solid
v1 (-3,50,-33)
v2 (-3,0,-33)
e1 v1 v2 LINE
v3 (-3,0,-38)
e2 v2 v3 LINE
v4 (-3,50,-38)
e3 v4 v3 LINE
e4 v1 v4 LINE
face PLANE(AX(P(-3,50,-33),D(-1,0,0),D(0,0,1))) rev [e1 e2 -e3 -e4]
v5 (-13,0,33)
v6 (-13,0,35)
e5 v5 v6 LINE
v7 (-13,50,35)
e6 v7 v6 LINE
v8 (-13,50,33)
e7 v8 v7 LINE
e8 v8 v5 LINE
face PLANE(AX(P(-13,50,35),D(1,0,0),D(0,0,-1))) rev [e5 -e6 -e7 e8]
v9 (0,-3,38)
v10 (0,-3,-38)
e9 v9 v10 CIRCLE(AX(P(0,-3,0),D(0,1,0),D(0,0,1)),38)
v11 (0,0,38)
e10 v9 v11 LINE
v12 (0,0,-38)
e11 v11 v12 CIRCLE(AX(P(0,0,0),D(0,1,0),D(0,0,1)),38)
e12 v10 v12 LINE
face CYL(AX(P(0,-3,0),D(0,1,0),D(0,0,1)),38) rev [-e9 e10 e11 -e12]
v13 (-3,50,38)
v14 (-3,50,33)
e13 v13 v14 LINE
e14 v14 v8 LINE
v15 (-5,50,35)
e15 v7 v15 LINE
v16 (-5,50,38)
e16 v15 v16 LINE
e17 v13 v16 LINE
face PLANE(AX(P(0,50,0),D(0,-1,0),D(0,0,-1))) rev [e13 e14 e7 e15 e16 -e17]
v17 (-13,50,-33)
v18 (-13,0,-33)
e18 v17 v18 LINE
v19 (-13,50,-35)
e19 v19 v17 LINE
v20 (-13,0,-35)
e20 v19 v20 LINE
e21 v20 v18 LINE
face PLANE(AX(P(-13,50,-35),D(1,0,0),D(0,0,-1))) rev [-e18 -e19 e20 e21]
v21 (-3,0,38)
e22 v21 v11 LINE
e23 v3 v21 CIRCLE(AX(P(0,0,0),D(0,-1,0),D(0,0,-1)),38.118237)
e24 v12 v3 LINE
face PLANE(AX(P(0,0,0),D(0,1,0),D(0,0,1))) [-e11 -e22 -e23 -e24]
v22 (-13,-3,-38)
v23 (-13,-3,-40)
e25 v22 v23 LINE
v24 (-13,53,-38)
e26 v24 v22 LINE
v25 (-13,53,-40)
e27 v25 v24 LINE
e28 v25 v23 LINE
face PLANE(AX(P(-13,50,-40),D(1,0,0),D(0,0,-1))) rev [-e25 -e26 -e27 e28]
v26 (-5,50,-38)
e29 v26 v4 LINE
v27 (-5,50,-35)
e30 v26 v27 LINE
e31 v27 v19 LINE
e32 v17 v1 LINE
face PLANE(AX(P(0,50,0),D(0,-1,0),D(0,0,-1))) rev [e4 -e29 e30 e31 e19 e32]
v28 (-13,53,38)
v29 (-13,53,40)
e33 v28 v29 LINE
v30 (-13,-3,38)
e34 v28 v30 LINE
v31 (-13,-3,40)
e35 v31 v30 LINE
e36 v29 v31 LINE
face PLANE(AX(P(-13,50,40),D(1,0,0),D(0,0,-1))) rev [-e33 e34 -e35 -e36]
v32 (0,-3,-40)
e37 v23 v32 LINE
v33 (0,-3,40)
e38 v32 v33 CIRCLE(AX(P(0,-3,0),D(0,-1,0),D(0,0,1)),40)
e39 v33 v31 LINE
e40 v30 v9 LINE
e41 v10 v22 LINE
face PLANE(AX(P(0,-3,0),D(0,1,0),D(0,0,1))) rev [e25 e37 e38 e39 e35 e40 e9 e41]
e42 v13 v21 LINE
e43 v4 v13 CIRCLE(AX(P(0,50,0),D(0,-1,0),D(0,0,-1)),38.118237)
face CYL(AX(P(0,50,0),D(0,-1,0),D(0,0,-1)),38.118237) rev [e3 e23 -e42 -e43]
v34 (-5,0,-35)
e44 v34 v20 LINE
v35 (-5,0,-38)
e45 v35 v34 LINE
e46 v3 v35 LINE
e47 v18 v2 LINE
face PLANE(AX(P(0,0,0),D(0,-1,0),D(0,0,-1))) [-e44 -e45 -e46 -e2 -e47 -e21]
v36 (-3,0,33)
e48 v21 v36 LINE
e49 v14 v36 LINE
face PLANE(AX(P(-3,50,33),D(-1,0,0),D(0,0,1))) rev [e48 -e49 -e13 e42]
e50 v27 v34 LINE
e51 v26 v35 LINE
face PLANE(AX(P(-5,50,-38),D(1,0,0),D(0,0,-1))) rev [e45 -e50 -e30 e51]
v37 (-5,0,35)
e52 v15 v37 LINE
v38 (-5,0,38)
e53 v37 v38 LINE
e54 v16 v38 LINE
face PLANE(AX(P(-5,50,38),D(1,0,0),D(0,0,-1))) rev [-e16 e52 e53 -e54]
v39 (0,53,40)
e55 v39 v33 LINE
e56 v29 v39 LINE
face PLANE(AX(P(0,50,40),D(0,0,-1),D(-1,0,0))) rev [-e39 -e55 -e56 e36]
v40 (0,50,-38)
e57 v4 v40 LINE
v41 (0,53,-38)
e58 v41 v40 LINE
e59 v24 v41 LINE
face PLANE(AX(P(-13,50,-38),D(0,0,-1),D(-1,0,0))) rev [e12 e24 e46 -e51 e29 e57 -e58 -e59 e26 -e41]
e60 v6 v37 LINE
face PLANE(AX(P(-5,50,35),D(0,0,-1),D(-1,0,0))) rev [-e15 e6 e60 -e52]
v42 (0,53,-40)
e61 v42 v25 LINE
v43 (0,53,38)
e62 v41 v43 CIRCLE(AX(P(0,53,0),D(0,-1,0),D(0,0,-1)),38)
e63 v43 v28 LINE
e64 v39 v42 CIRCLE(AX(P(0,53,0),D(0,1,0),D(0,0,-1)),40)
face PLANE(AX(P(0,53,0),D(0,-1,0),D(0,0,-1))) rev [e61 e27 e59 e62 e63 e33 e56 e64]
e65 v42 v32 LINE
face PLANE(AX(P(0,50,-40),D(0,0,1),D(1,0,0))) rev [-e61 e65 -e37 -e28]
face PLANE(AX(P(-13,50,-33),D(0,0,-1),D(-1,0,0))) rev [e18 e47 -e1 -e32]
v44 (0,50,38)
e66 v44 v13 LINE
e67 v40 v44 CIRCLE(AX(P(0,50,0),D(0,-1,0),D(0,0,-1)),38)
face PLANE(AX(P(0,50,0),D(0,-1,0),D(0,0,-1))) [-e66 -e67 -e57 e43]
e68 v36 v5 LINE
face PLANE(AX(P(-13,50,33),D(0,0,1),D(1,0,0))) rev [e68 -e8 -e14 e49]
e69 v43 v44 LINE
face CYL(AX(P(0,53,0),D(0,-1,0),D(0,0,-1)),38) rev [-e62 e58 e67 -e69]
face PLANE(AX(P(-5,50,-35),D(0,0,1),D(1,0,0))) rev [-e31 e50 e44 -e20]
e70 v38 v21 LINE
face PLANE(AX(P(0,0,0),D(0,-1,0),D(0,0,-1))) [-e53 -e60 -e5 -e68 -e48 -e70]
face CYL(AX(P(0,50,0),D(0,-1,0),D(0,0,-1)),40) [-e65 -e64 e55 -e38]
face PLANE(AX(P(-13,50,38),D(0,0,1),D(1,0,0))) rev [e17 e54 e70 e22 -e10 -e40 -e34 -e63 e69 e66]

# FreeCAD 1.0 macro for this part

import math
import FreeCAD as App
import Part
import Sketcher

doc = App.newDocument("Part")
body = doc.addObject("PartDesign::Body", "Body")

sketch1 = body.newObject("Sketcher::SketchObject", "Sketch")
sketch1.AttachmentSupport = (doc.getObject("XZ_Plane"), [""])
sketch1.MapMode = "FlatFace"
sketch1.addGeometry([
    Part.LineSegment(App.Vector(0, -40, 0), App.Vector(-13, -40, 0)),
    Part.LineSegment(App.Vector(-13, -40, 0), App.Vector(-13, -38, 0)),
    Part.LineSegment(App.Vector(-13, -38, 0), App.Vector(-5, -38, 0)),
    Part.LineSegment(App.Vector(-5, -38, 0), App.Vector(-5, -35, 0)),
    Part.LineSegment(App.Vector(-5, -35, 0), App.Vector(-13, -35, 0)),
    Part.LineSegment(App.Vector(-13, -35, 0), App.Vector(-13, -33, 0)),
    Part.LineSegment(App.Vector(-13, -33, 0), App.Vector(-3, -33, 0)),
    Part.LineSegment(App.Vector(-3, -33, 0), App.Vector(-3, -38, 0)),
    Part.ArcOfCircle(Part.Circle(App.Vector(0, 0, 0), App.Vector(0, 0, 1), 38.1), math.radians(-95), math.radians(95)),
    Part.LineSegment(App.Vector(-3, 38, 0), App.Vector(-3, 33, 0)),
    Part.LineSegment(App.Vector(-3, 33, 0), App.Vector(-13, 33, 0)),
    Part.LineSegment(App.Vector(-13, 33, 0), App.Vector(-13, 35, 0)),
    Part.LineSegment(App.Vector(-13, 35, 0), App.Vector(-5, 35, 0)),
    Part.LineSegment(App.Vector(-5, 35, 0), App.Vector(-5, 38, 0)),
    Part.LineSegment(App.Vector(-5, 38, 0), App.Vector(-13, 38, 0)),
    Part.LineSegment(App.Vector(-13, 38, 0), App.Vector(-13, 40, 0)),
    Part.LineSegment(App.Vector(-13, 40, 0), App.Vector(0, 40, 0)),
    Part.ArcOfCircle(Part.Circle(App.Vector(0, 0, 0), App.Vector(0, 0, 1), 40), math.radians(-90), math.radians(90)),
], False)
sketch1.addConstraint([
    Sketcher.Constraint("Coincident", 0, 2, 1, 1),
    Sketcher.Constraint("Coincident", 1, 2, 2, 1),
    Sketcher.Constraint("Coincident", 2, 2, 3, 1),
    Sketcher.Constraint("Coincident", 3, 2, 4, 1),
    Sketcher.Constraint("Coincident", 4, 2, 5, 1),
    Sketcher.Constraint("Coincident", 5, 2, 6, 1),
    Sketcher.Constraint("Coincident", 6, 2, 7, 1),
    Sketcher.Constraint("Coincident", 7, 2, 8, 1),
    Sketcher.Constraint("Coincident", 8, 2, 9, 1),
    Sketcher.Constraint("Coincident", 9, 2, 10, 1),
    Sketcher.Constraint("Coincident", 10, 2, 11, 1),
    Sketcher.Constraint("Coincident", 11, 2, 12, 1),
    Sketcher.Constraint("Coincident", 12, 2, 13, 1),
    Sketcher.Constraint("Coincident", 13, 2, 14, 1),
    Sketcher.Constraint("Coincident", 14, 2, 15, 1),
    Sketcher.Constraint("Coincident", 15, 2, 16, 1),
    Sketcher.Constraint("Tangent", 16, 2, 17, 2),
    Sketcher.Constraint("Tangent", 17, 1, 0, 1),
    Sketcher.Constraint("Horizontal", 0),
    Sketcher.Constraint("Vertical", 1),
    Sketcher.Constraint("Horizontal", 2),
    Sketcher.Constraint("Vertical", 3),
    Sketcher.Constraint("Horizontal", 4),
    Sketcher.Constraint("Vertical", 5),
    Sketcher.Constraint("Horizontal", 6),
    Sketcher.Constraint("Vertical", 7),
    Sketcher.Constraint("Vertical", 9),
    Sketcher.Constraint("Horizontal", 10),
    Sketcher.Constraint("Vertical", 11),
    Sketcher.Constraint("Horizontal", 12),
    Sketcher.Constraint("Vertical", 13),
    Sketcher.Constraint("Horizontal", 14),
    Sketcher.Constraint("Vertical", 15),
    Sketcher.Constraint("Horizontal", 16),
    Sketcher.Constraint("Coincident", 8, 3, -1, 1),
    Sketcher.Constraint("Coincident", 17, 3, -1, 1),
    Sketcher.Constraint("Symmetric", 6, 2, 9, 2, -1),
    Sketcher.Constraint("Symmetric", 4, 2, 11, 2, -1),
    Sketcher.Constraint("Symmetric", 2, 2, 13, 2, -1),
    Sketcher.Constraint("Horizontal", 2, 2, 7, 2),
    Sketcher.Constraint("Vertical", 1, 2, 4, 2),
    Sketcher.Constraint("Vertical", 11, 2, 14, 2),
    Sketcher.Constraint("Equal", 1, 5),
    Sketcher.Constraint("Radius", 17, 40.0),
    Sketcher.Constraint("DistanceX", 0, 2, 0, 1, 13.0),
    Sketcher.Constraint("DistanceX", 2, 1, 2, 2, 8.0),
    Sketcher.Constraint("DistanceX", 6, 1, 6, 2, 10.0),
    Sketcher.Constraint("DistanceY", 1, 1, 1, 2, 2.0),
    Sketcher.Constraint("DistanceY", 3, 1, 3, 2, 3.0),
])
pad1 = body.newObject("PartDesign::Pad", "Pad")
pad1.Profile = sketch1
pad1.Length = 50
pad1.Reversed = True

sketch2 = body.newObject("Sketcher::SketchObject", "Sketch001")
sketch2.AttachmentSupport = (doc.getObject("XZ_Plane"), [""])
sketch2.MapMode = "FlatFace"
sketch2.AttachmentOffset = App.Placement(App.Vector(0, 0, -50), App.Rotation())
sketch2.addGeometry([
    Part.LineSegment(App.Vector(0, 38, 0), App.Vector(-13, 38, 0)),
    Part.LineSegment(App.Vector(-13, 38, 0), App.Vector(-13, 40, 0)),
    Part.LineSegment(App.Vector(-13, 40, 0), App.Vector(0, 40, 0)),
    Part.ArcOfCircle(Part.Circle(App.Vector(0, 0, 0), App.Vector(0, 0, 1), 40), math.radians(-90), math.radians(90)),
    Part.LineSegment(App.Vector(0, -40, 0), App.Vector(-13, -40, 0)),
    Part.LineSegment(App.Vector(-13, -40, 0), App.Vector(-13, -38, 0)),
    Part.LineSegment(App.Vector(-13, -38, 0), App.Vector(0, -38, 0)),
    Part.ArcOfCircle(Part.Circle(App.Vector(0, 0, 0), App.Vector(0, 0, 1), 38), math.radians(-90), math.radians(90)),
], False)
sketch2.addConstraint([
    Sketcher.Constraint("Coincident", 0, 2, 1, 1),
    Sketcher.Constraint("Coincident", 1, 2, 2, 1),
    Sketcher.Constraint("Tangent", 2, 2, 3, 2),
    Sketcher.Constraint("Tangent", 3, 1, 4, 1),
    Sketcher.Constraint("Coincident", 4, 2, 5, 1),
    Sketcher.Constraint("Coincident", 5, 2, 6, 1),
    Sketcher.Constraint("Tangent", 6, 2, 7, 1),
    Sketcher.Constraint("Tangent", 7, 2, 0, 1),
    Sketcher.Constraint("Horizontal", 0),
    Sketcher.Constraint("Vertical", 1),
    Sketcher.Constraint("Horizontal", 2),
    Sketcher.Constraint("Horizontal", 4),
    Sketcher.Constraint("Vertical", 5),
    Sketcher.Constraint("Horizontal", 6),
    Sketcher.Constraint("Coincident", 3, 3, -1, 1),
    Sketcher.Constraint("Coincident", 7, 3, -1, 1),
    Sketcher.Constraint("Vertical", 1, 2, 4, 2),
    Sketcher.Constraint("Radius", 3, 40.0),
    Sketcher.Constraint("Radius", 7, 38.0),
    Sketcher.Constraint("DistanceX", 0, 2, 0, 1, 13.0),
])
pad2 = body.newObject("PartDesign::Pad", "Pad001")
pad2.Profile = sketch2
pad2.Length = 3
pad2.Reversed = True

sketch3 = body.newObject("Sketcher::SketchObject", "Sketch002")
sketch3.AttachmentSupport = (doc.getObject("XZ_Plane"), [""])
sketch3.MapMode = "FlatFace"
sketch3.addGeometry([
    Part.LineSegment(App.Vector(-13, -40, 0), App.Vector(0, -40, 0)),
    Part.ArcOfCircle(Part.Circle(App.Vector(0, 0, 0), App.Vector(0, 0, 1), 40), math.radians(-90), math.radians(90)),
    Part.LineSegment(App.Vector(0, 40, 0), App.Vector(-13, 40, 0)),
    Part.LineSegment(App.Vector(-13, 40, 0), App.Vector(-13, 38, 0)),
    Part.LineSegment(App.Vector(-13, 38, 0), App.Vector(0, 38, 0)),
    Part.ArcOfCircle(Part.Circle(App.Vector(0, 0, 0), App.Vector(0, 0, 1), 38), math.radians(-90), math.radians(90)),
    Part.LineSegment(App.Vector(0, -38, 0), App.Vector(-13, -38, 0)),
    Part.LineSegment(App.Vector(-13, -38, 0), App.Vector(-13, -40, 0)),
], False)
sketch3.addConstraint([
    Sketcher.Constraint("Tangent", 0, 2, 1, 1),
    Sketcher.Constraint("Tangent", 1, 2, 2, 1),
    Sketcher.Constraint("Coincident", 2, 2, 3, 1),
    Sketcher.Constraint("Coincident", 3, 2, 4, 1),
    Sketcher.Constraint("Tangent", 4, 2, 5, 2),
    Sketcher.Constraint("Tangent", 5, 1, 6, 1),
    Sketcher.Constraint("Coincident", 6, 2, 7, 1),
    Sketcher.Constraint("Coincident", 7, 2, 0, 1),
    Sketcher.Constraint("Horizontal", 0),
    Sketcher.Constraint("Horizontal", 2),
    Sketcher.Constraint("Vertical", 3),
    Sketcher.Constraint("Horizontal", 4),
    Sketcher.Constraint("Horizontal", 6),
    Sketcher.Constraint("Vertical", 7),
    Sketcher.Constraint("Coincident", 1, 3, -1, 1),
    Sketcher.Constraint("Coincident", 5, 3, -1, 1),
    Sketcher.Constraint("Vertical", 3, 2, 6, 2),
    Sketcher.Constraint("Radius", 1, 40.0),
    Sketcher.Constraint("Radius", 5, 38.0),
    Sketcher.Constraint("DistanceX", 0, 1, 0, 2, 13.0),
])
pad3 = body.newObject("PartDesign::Pad", "Pad002")
pad3.Profile = sketch3
pad3.Length = 3

doc.recompute()
